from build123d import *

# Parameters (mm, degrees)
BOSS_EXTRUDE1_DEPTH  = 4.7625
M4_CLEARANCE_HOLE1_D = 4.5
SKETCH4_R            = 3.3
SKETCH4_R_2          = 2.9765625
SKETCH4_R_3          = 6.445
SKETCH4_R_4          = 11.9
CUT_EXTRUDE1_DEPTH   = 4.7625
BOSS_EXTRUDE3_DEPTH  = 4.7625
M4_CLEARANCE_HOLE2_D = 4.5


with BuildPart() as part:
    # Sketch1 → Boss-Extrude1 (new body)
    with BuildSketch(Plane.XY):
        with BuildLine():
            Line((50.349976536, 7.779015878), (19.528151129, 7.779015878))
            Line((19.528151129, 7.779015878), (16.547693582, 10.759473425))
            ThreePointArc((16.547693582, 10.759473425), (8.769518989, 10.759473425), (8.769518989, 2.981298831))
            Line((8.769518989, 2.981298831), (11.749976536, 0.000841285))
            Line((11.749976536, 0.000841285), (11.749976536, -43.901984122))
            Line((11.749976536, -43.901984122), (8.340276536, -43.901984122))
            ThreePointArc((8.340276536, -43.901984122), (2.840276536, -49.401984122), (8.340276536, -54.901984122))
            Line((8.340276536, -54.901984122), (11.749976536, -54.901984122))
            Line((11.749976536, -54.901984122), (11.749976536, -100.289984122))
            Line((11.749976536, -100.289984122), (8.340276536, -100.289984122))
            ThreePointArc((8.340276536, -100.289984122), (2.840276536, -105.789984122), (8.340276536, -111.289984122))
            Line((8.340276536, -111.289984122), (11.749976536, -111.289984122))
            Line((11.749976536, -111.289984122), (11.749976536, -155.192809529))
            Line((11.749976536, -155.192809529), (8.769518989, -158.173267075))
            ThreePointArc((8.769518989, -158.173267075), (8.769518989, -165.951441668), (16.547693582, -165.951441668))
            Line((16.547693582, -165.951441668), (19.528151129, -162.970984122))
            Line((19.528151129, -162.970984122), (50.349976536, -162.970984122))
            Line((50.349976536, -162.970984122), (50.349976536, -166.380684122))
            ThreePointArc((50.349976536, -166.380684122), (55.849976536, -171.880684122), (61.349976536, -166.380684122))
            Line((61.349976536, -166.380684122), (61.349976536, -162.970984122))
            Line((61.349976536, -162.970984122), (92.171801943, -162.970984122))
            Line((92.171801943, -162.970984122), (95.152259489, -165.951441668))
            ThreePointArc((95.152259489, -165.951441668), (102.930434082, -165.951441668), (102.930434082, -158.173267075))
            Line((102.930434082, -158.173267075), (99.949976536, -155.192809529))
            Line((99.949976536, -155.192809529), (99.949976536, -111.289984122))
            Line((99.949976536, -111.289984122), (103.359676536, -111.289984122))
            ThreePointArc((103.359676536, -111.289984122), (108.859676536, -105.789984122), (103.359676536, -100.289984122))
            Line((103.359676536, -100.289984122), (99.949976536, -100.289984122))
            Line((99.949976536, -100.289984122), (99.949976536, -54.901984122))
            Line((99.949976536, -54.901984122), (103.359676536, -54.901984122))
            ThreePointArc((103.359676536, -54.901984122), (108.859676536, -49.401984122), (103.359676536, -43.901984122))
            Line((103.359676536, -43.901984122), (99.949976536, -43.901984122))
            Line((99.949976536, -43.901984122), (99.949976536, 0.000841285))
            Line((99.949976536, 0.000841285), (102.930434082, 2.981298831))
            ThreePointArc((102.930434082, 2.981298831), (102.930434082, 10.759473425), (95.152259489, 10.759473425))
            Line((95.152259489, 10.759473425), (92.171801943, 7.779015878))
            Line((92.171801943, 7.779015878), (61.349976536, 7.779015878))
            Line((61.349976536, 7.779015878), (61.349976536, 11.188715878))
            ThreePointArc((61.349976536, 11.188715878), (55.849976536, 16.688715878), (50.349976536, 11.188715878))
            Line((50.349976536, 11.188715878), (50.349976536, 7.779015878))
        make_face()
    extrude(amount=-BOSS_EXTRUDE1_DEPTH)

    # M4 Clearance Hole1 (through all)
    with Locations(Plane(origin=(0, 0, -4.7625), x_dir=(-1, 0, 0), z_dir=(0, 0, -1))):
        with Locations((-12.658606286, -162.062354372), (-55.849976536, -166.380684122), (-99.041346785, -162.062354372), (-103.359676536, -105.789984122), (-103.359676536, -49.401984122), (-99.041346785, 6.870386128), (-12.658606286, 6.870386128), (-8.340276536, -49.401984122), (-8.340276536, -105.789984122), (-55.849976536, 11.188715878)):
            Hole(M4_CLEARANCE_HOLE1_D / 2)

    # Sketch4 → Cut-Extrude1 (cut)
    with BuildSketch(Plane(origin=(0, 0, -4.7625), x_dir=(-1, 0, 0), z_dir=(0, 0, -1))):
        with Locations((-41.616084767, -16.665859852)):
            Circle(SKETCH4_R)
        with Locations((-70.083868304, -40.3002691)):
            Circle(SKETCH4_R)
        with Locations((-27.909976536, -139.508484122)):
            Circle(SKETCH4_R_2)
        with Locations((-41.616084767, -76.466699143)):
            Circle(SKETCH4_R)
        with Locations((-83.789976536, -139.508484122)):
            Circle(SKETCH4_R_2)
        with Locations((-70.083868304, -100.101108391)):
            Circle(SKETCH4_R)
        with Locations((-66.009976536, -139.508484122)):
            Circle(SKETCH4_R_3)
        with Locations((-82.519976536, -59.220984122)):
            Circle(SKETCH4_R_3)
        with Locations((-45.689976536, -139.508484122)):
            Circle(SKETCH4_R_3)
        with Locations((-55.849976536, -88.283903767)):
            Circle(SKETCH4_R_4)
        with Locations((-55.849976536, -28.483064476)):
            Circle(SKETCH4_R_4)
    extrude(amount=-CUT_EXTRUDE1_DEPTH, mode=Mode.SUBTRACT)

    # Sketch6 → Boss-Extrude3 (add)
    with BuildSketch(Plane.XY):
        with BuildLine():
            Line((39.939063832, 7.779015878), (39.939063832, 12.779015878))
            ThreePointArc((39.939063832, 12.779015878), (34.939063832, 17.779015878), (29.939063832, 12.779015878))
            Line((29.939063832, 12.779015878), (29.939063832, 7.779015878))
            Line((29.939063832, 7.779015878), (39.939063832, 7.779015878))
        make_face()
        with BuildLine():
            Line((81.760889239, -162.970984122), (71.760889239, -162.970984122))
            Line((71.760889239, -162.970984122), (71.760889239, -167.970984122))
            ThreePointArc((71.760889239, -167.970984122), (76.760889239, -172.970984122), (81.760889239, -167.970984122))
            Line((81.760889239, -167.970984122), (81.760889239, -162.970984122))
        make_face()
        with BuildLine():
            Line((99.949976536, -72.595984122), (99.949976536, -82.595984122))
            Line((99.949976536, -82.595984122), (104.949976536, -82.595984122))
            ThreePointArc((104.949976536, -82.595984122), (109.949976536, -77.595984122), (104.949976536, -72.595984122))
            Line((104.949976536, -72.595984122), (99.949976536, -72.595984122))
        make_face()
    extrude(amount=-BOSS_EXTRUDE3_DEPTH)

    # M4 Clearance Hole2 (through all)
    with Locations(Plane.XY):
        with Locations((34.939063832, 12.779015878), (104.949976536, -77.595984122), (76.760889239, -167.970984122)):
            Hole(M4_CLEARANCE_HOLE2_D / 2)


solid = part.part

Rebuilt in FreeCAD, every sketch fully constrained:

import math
import FreeCAD as App
import Part
import Sketcher

doc = App.newDocument("Part")
body = doc.addObject("PartDesign::Body", "Body")

# Sketch on XY plane
sketch1 = body.newObject("Sketcher::SketchObject", "Sketch")
sketch1.AttachmentSupport = (doc.getObject("XY_Plane"), [""])
sketch1.MapMode = "FlatFace"
sketch1.addGeometry([
    Part.LineSegment(App.Vector(50.3, 7.8, 0), App.Vector(19.5, 7.8, 0)),  # 0
    Part.LineSegment(App.Vector(19.5, 7.8, 0), App.Vector(16.5, 10.8, 0)),  # 1
    Part.ArcOfCircle(Part.Circle(App.Vector(12.7, 6.9, 0), App.Vector(0, 0, 1), 5.5), math.radians(45), math.radians(225)),  # 2
    Part.LineSegment(App.Vector(8.8, 3, 0), App.Vector(11.7, 0, 0)),  # 3
    Part.LineSegment(App.Vector(11.7, 0, 0), App.Vector(11.7, -43.9, 0)),  # 4
    Part.LineSegment(App.Vector(11.7, -43.9, 0), App.Vector(8.3, -43.9, 0)),  # 5
    Part.ArcOfCircle(Part.Circle(App.Vector(8.3, -49.4, 0), App.Vector(0, 0, 1), 5.5), math.radians(90), math.radians(270)),  # 6
    Part.LineSegment(App.Vector(8.3, -54.9, 0), App.Vector(11.7, -54.9, 0)),  # 7
    Part.LineSegment(App.Vector(11.7, -54.9, 0), App.Vector(11.7, -100.3, 0)),  # 8
    Part.LineSegment(App.Vector(11.7, -100.3, 0), App.Vector(8.3, -100.3, 0)),  # 9
    Part.ArcOfCircle(Part.Circle(App.Vector(8.3, -105.8, 0), App.Vector(0, 0, 1), 5.5), math.radians(90), math.radians(270)),  # 10
    Part.LineSegment(App.Vector(8.3, -111.3, 0), App.Vector(11.7, -111.3, 0)),  # 11
    Part.LineSegment(App.Vector(11.7, -111.3, 0), App.Vector(11.7, -155.2, 0)),  # 12
    Part.LineSegment(App.Vector(11.7, -155.2, 0), App.Vector(8.8, -158.2, 0)),  # 13
    Part.ArcOfCircle(Part.Circle(App.Vector(12.7, -162.1, 0), App.Vector(0, 0, 1), 5.5), math.radians(135), math.radians(315)),  # 14
    Part.LineSegment(App.Vector(16.5, -166, 0), App.Vector(19.5, -163, 0)),  # 15
    Part.LineSegment(App.Vector(19.5, -163, 0), App.Vector(50.3, -163, 0)),  # 16
    Part.LineSegment(App.Vector(50.3, -163, 0), App.Vector(50.3, -166.4, 0)),  # 17
    Part.ArcOfCircle(Part.Circle(App.Vector(55.8, -166.4, 0), App.Vector(0, 0, 1), 5.5), math.radians(180), math.radians(360)),  # 18
    Part.LineSegment(App.Vector(61.3, -166.4, 0), App.Vector(61.3, -163, 0)),  # 19
    Part.LineSegment(App.Vector(61.3, -163, 0), App.Vector(92.2, -163, 0)),  # 20
    Part.LineSegment(App.Vector(92.2, -163, 0), App.Vector(95.2, -166, 0)),  # 21
    Part.ArcOfCircle(Part.Circle(App.Vector(99, -162.1, 0), App.Vector(0, 0, 1), 5.5), math.radians(-135), math.radians(45)),  # 22
    Part.LineSegment(App.Vector(102.9, -158.2, 0), App.Vector(99.9, -155.2, 0)),  # 23
    Part.LineSegment(App.Vector(99.9, -155.2, 0), App.Vector(99.9, -111.3, 0)),  # 24
    Part.LineSegment(App.Vector(99.9, -111.3, 0), App.Vector(103.4, -111.3, 0)),  # 25
    Part.ArcOfCircle(Part.Circle(App.Vector(103.4, -105.8, 0), App.Vector(0, 0, 1), 5.5), math.radians(-90), math.radians(90)),  # 26
    Part.LineSegment(App.Vector(103.4, -100.3, 0), App.Vector(99.9, -100.3, 0)),  # 27
    Part.LineSegment(App.Vector(99.9, -100.3, 0), App.Vector(99.9, -54.9, 0)),  # 28
    Part.LineSegment(App.Vector(99.9, -54.9, 0), App.Vector(103.4, -54.9, 0)),  # 29
    Part.ArcOfCircle(Part.Circle(App.Vector(103.4, -49.4, 0), App.Vector(0, 0, 1), 5.5), math.radians(-90), math.radians(90)),  # 30
    Part.LineSegment(App.Vector(103.4, -43.9, 0), App.Vector(99.9, -43.9, 0)),  # 31
    Part.LineSegment(App.Vector(99.9, -43.9, 0), App.Vector(99.9, 0, 0)),  # 32
    Part.LineSegment(App.Vector(99.9, 0, 0), App.Vector(102.9, 3, 0)),  # 33
    Part.ArcOfCircle(Part.Circle(App.Vector(99, 6.9, 0), App.Vector(0, 0, 1), 5.5), math.radians(-45), math.radians(135)),  # 34
    Part.LineSegment(App.Vector(95.2, 10.8, 0), App.Vector(92.2, 7.8, 0)),  # 35
    Part.LineSegment(App.Vector(92.2, 7.8, 0), App.Vector(61.3, 7.8, 0)),  # 36
    Part.LineSegment(App.Vector(61.3, 7.8, 0), App.Vector(61.3, 11.2, 0)),  # 37
    Part.ArcOfCircle(Part.Circle(App.Vector(55.8, 11.2, 0), App.Vector(0, 0, 1), 5.5), math.radians(0), math.radians(180)),  # 38
    Part.LineSegment(App.Vector(50.3, 11.2, 0), App.Vector(50.3, 7.8, 0)),  # 39
], False)
sketch1.addConstraint([
    Sketcher.Constraint("Coincident", 0, 2, 1, 1),
    Sketcher.Constraint("Tangent", 1, 2, 2, 1),
    Sketcher.Constraint("Tangent", 2, 2, 3, 1),
    Sketcher.Constraint("Coincident", 3, 2, 4, 1),
    Sketcher.Constraint("Coincident", 4, 2, 5, 1),
    Sketcher.Constraint("Tangent", 5, 2, 6, 1),
    Sketcher.Constraint("Tangent", 6, 2, 7, 1),
    Sketcher.Constraint("Coincident", 7, 2, 8, 1),
    Sketcher.Constraint("Coincident", 8, 2, 9, 1),
    Sketcher.Constraint("Tangent", 9, 2, 10, 1),
    Sketcher.Constraint("Tangent", 10, 2, 11, 1),
    Sketcher.Constraint("Coincident", 11, 2, 12, 1),
    Sketcher.Constraint("Coincident", 12, 2, 13, 1),
    Sketcher.Constraint("Tangent", 13, 2, 14, 1),
    Sketcher.Constraint("Tangent", 14, 2, 15, 1),
    Sketcher.Constraint("Coincident", 15, 2, 16, 1),
    Sketcher.Constraint("Coincident", 16, 2, 17, 1),
    Sketcher.Constraint("Tangent", 17, 2, 18, 1),
    Sketcher.Constraint("Tangent", 18, 2, 19, 1),
    Sketcher.Constraint("Coincident", 19, 2, 20, 1),
    Sketcher.Constraint("Coincident", 20, 2, 21, 1),
    Sketcher.Constraint("Tangent", 21, 2, 22, 1),
    Sketcher.Constraint("Tangent", 22, 2, 23, 1),
    Sketcher.Constraint("Coincident", 23, 2, 24, 1),
    Sketcher.Constraint("Coincident", 24, 2, 25, 1),
    Sketcher.Constraint("Tangent", 25, 2, 26, 1),
    Sketcher.Constraint("Tangent", 26, 2, 27, 1),
    Sketcher.Constraint("Coincident", 27, 2, 28, 1),
    Sketcher.Constraint("Coincident", 28, 2, 29, 1),
    Sketcher.Constraint("Tangent", 29, 2, 30, 1),
    Sketcher.Constraint("Tangent", 30, 2, 31, 1),
    Sketcher.Constraint("Coincident", 31, 2, 32, 1),
    Sketcher.Constraint("Coincident", 32, 2, 33, 1),
    Sketcher.Constraint("Tangent", 33, 2, 34, 1),
    Sketcher.Constraint("Tangent", 34, 2, 35, 1),
    Sketcher.Constraint("Coincident", 35, 2, 36, 1),
    Sketcher.Constraint("Coincident", 36, 2, 37, 1),
    Sketcher.Constraint("Tangent", 37, 2, 38, 1),
    Sketcher.Constraint("Tangent", 38, 2, 39, 1),
    Sketcher.Constraint("Coincident", 39, 2, 0, 1),
    Sketcher.Constraint("Horizontal", 0),
    Sketcher.Constraint("Vertical", 4),
    Sketcher.Constraint("Horizontal", 5),
    Sketcher.Constraint("Horizontal", 7),
    Sketcher.Constraint("Vertical", 8),
    Sketcher.Constraint("Horizontal", 9),
    Sketcher.Constraint("Horizontal", 11),
    Sketcher.Constraint("Vertical", 12),
    Sketcher.Constraint("Horizontal", 16),
    Sketcher.Constraint("Vertical", 17),
    Sketcher.Constraint("Vertical", 19),
    Sketcher.Constraint("Horizontal", 20),
    Sketcher.Constraint("Vertical", 24),
    Sketcher.Constraint("Horizontal", 25),
    Sketcher.Constraint("Horizontal", 27),
    Sketcher.Constraint("Vertical", 28),
    Sketcher.Constraint("Horizontal", 29),
    Sketcher.Constraint("Horizontal", 31),
    Sketcher.Constraint("Vertical", 32),
    Sketcher.Constraint("Horizontal", 36),
    Sketcher.Constraint("Vertical", 37),
    Sketcher.Constraint("Vertical", 39),
    Sketcher.Constraint("Equal", 2, 6),
    Sketcher.Constraint("Equal", 6, 10),
    Sketcher.Constraint("Equal", 10, 14),
    Sketcher.Constraint("Equal", 14, 18),
    Sketcher.Constraint("Equal", 18, 22),
    Sketcher.Constraint("Equal", 22, 26),
    Sketcher.Constraint("Equal", 26, 30),
    Sketcher.Constraint("Equal", 30, 34),
    Sketcher.Constraint("Equal", 34, 38),
    Sketcher.Constraint("Parallel", 1, 3),
    Sketcher.Constraint("Perpendicular", 3, 13),
    Sketcher.Constraint("Parallel", 13, 15),
    Sketcher.Constraint("Perpendicular", 15, 21),
    Sketcher.Constraint("Parallel", 21, 23),
    Sketcher.Constraint("Perpendicular", 23, 33),
    Sketcher.Constraint("Parallel", 33, 35),
    Sketcher.Constraint("Horizontal", 14, 3, 22, 3),
    Sketcher.Constraint("Horizontal", 10, 3, 26, 3),
    Sketcher.Constraint("Horizontal", 6, 3, 30, 3),
    Sketcher.Constraint("Horizontal", 2, 3, 34, 3),
    Sketcher.Constraint("Horizontal", 16, 2, 19, 2),
    Sketcher.Constraint("Horizontal", 14, 2, 21, 2),
    Sketcher.Constraint("Horizontal", 12, 2, 23, 2),
    Sketcher.Constraint("Horizontal", 3, 2, 32, 2),
    Sketcher.Constraint("Horizontal", 0, 2, 35, 2),
    Sketcher.Constraint("Vertical", 6, 3, 10, 3),
    Sketcher.Constraint("Vertical", 2, 3, 14, 3),
    Sketcher.Constraint("Vertical", 26, 3, 30, 3),
    Sketcher.Constraint("Vertical", 22, 3, 34, 3),
    Sketcher.Constraint("Vertical", 18, 3, 38, 3),
    Sketcher.Constraint("Vertical", 4, 2, 7, 2),
    Sketcher.Constraint("Vertical", 8, 2, 11, 2),
    Sketcher.Constraint("Vertical", 0, 2, 15, 2),
    Sketcher.Constraint("Vertical", 24, 2, 27, 2),
    Sketcher.Constraint("Equal", 16, 20),
    Sketcher.Constraint("Equal", 11, 25),
    Sketcher.Constraint("Equal", 4, 12),
    Sketcher.Constraint("Equal", 31, 17),
    Sketcher.Constraint("Equal", 19, 37),
    Sketcher.Constraint("Equal", 1, 3),
    Sketcher.Constraint("Radius", 2, 5.5),
    Sketcher.Constraint("DistanceX", 3, 2, 38, 3, 44.1),
    Sketcher.Constraint("DistanceY", 8, 2, 8, 1, 45.388),
    Sketcher.Constraint("DistanceX", 5, 2, 5, 1, 3.4097),
    Sketcher.Constraint("DistanceY", 6, 3, 0, 2, 57.181),
    Sketcher.Constraint("DistanceY", -1, 1, 2, 2, 2.981299),
    Sketcher.Constraint("DistanceX", -1, 1, 20, 2, 92.171802),
    Sketcher.Constraint("DistanceX", -1, 1, 2, 2, 8.769519),
])
pad1 = body.newObject("PartDesign::Pad", "Pad")
pad1.Profile = sketch1
pad1.Length = 4.7625
pad1.Reversed = True

# Sketch on XY plane
sketch2 = body.newObject("Sketcher::SketchObject", "Sketch001")
sketch2.AttachmentSupport = (doc.getObject("XY_Plane"), [""])
sketch2.MapMode = "FlatFace"
sketch2.AttachmentOffset = App.Placement(App.Vector(0, 0, -4.7625), App.Rotation())
sketch2.addGeometry([
    Part.Circle(App.Vector(12.7, -162.1, 0), App.Vector(0, 0, 1), 2.2),  # 0
    Part.Circle(App.Vector(55.8, -166.4, 0), App.Vector(0, 0, 1), 2.2),  # 1
    Part.Circle(App.Vector(99, -162.1, 0), App.Vector(0, 0, 1), 2.2),  # 2
    Part.Circle(App.Vector(103.4, -105.8, 0), App.Vector(0, 0, 1), 2.2),  # 3
    Part.Circle(App.Vector(103.4, -49.4, 0), App.Vector(0, 0, 1), 2.2),  # 4
    Part.Circle(App.Vector(99, 6.9, 0), App.Vector(0, 0, 1), 2.2),  # 5
    Part.Circle(App.Vector(12.7, 6.9, 0), App.Vector(0, 0, 1), 2.2),  # 6
    Part.Circle(App.Vector(8.3, -49.4, 0), App.Vector(0, 0, 1), 2.2),  # 7
    Part.Circle(App.Vector(8.3, -105.8, 0), App.Vector(0, 0, 1), 2.2),  # 8
    Part.Circle(App.Vector(55.8, 11.2, 0), App.Vector(0, 0, 1), 2.2),  # 9
], False)
sketch2.addConstraint([
    Sketcher.Constraint("Equal", 0, 1),
    Sketcher.Constraint("Equal", 1, 2),
    Sketcher.Constraint("Equal", 2, 3),
    Sketcher.Constraint("Equal", 3, 4),
    Sketcher.Constraint("Equal", 4, 5),
    Sketcher.Constraint("Equal", 5, 6),
    Sketcher.Constraint("Equal", 6, 7),
    Sketcher.Constraint("Equal", 7, 8),
    Sketcher.Constraint("Equal", 8, 9),
    Sketcher.Constraint("Horizontal", 0, 3, 2, 3),
    Sketcher.Constraint("Horizontal", 5, 3, 6, 3),
    Sketcher.Constraint("Horizontal", 4, 3, 7, 3),
    Sketcher.Constraint("Horizontal", 3, 3, 8, 3),
    Sketcher.Constraint("Vertical", 3, 3, 4, 3),
    Sketcher.Constraint("Vertical", 2, 3, 5, 3),
    Sketcher.Constraint("Vertical", 0, 3, 6, 3),
    Sketcher.Constraint("Vertical", 7, 3, 8, 3),
    Sketcher.Constraint("Vertical", 1, 3, 9, 3),
    Sketcher.Constraint("Diameter", 0, 4.5),
    Sketcher.Constraint("DistanceY", 3, 3, 4, 3, 56.388),
    Sketcher.Constraint("DistanceX", 1, 3, 3, 3, 47.5097),
    Sketcher.Constraint("DistanceY", 1, 3, 3, 3, 60.5907),
    Sketcher.Constraint("DistanceX", 7, 3, 4, 3, 95.0194),
    Sketcher.Constraint("DistanceY", 4, 3, 9, 3, 60.5907),
    Sketcher.Constraint("DistanceX", 0, 3, 1, 3, 43.19137),
    Sketcher.Constraint("DistanceY", 1, 3, 0, 3, 4.31833),
    Sketcher.Constraint("DistanceX", 1, 3, 2, 3, 43.19137),
    Sketcher.Constraint("DistanceY", 4, 3, 5, 3, 56.27237),
    Sketcher.Constraint("DistanceX", -1, 1, 0, 3, 12.658606),
    Sketcher.Constraint("DistanceY", 0, 3, -1, 1, 162.062354),
])
doc.recompute()
hole = body.newObject("PartDesign::Hole", "Hole")
hole.Profile = sketch2
hole.ThreadType = "None"
hole.Diameter = 4.5
hole.DepthType = "ThroughAll"
hole.Reversed = True

# Sketch on XY plane
sketch3 = body.newObject("Sketcher::SketchObject", "Sketch002")
sketch3.AttachmentSupport = (doc.getObject("XY_Plane"), [""])
sketch3.MapMode = "FlatFace"
sketch3.AttachmentOffset = App.Placement(App.Vector(0, 0, -4.7625), App.Rotation())
sketch3.addGeometry([
    Part.Circle(App.Vector(41.6, -16.7, 0), App.Vector(0, 0, 1), 3.3),  # 0
    Part.Circle(App.Vector(70.1, -40.3, 0), App.Vector(0, 0, 1), 3.3),  # 1
    Part.Circle(App.Vector(27.9, -139.5, 0), App.Vector(0, 0, 1), 3),  # 2
    Part.Circle(App.Vector(41.6, -76.5, 0), App.Vector(0, 0, 1), 3.3),  # 3
    Part.Circle(App.Vector(83.8, -139.5, 0), App.Vector(0, 0, 1), 3),  # 4
    Part.Circle(App.Vector(70.1, -100.1, 0), App.Vector(0, 0, 1), 3.3),  # 5
    Part.Circle(App.Vector(66, -139.5, 0), App.Vector(0, 0, 1), 6.4),  # 6
    Part.Circle(App.Vector(82.5, -59.2, 0), App.Vector(0, 0, 1), 6.4),  # 7
    Part.Circle(App.Vector(45.7, -139.5, 0), App.Vector(0, 0, 1), 6.4),  # 8
    Part.Circle(App.Vector(55.8, -88.3, 0), App.Vector(0, 0, 1), 11.9),  # 9
    Part.Circle(App.Vector(55.8, -28.5, 0), App.Vector(0, 0, 1), 11.9),  # 10
], False)
sketch3.addConstraint([
    Sketcher.Constraint("Equal", 0, 1),
    Sketcher.Constraint("Equal", 1, 3),
    Sketcher.Constraint("Equal", 2, 4),
    Sketcher.Constraint("Equal", 3, 5),
    Sketcher.Constraint("Equal", 6, 7),
    Sketcher.Constraint("Equal", 7, 8),
    Sketcher.Constraint("Equal", 9, 10),
    Sketcher.Constraint("Horizontal", 2, 3, 4, 3),
    Sketcher.Constraint("Horizontal", 4, 3, 6, 3),
    Sketcher.Constraint("Horizontal", 6, 3, 8, 3),
    Sketcher.Constraint("Vertical", 0, 3, 3, 3),
    Sketcher.Constraint("Vertical", 1, 3, 5, 3),
    Sketcher.Constraint("Vertical", 9, 3, 10, 3),
    Sketcher.Constraint("Diameter", 0, 6.6),
    Sketcher.Constraint("Diameter", 9, 23.8),
    Sketcher.Constraint("Diameter", 6, 12.89),
    Sketcher.Constraint("DistanceX", 2, 3, 6, 3, 38.1),
    Sketcher.Constraint("DistanceX", 8, 3, 4, 3, 38.1),
    Sketcher.Constraint("DistanceX", 2, 3, 4, 3, 55.88),
    Sketcher.Constraint("DistanceX", 7, 3, 4, 3, 1.27),
    Sketcher.Constraint("DistanceX", 9, 3, 7, 3, 26.67),
    Sketcher.Constraint("Diameter", 2, 5.953125),
    Sketcher.Constraint("DistanceY", 3, 3, -1, 1, 76.466699),
    Sketcher.Constraint("DistanceY", 4, 3, 7, 3, 80.2875),
    Sketcher.Constraint("DistanceY", 0, 3, -1, 1, 16.66586),
    Sketcher.Constraint("DistanceX", -1, 1, 1, 3, 70.083868),
    Sketcher.Constraint("DistanceY", 1, 3, -1, 1, 40.300269),
    Sketcher.Constraint("DistanceY", 5, 3, -1, 1, 100.101108),
    Sketcher.Constraint("DistanceX", 2, 3, 1, 3, 42.173892),
    Sketcher.Constraint("DistanceX", 2, 3, 0, 3, 13.706108),
    Sketcher.Constraint("DistanceY", 9, 3, 7, 3, 29.06292),
    Sketcher.Constraint("DistanceY", 7, 3, 10, 3, 30.73792),
    Sketcher.Constraint("DistanceY", 2, 3, -1, 1, 139.508484),
])
pocket1 = body.newObject("PartDesign::Pocket", "Pocket")
pocket1.Profile = sketch3
pocket1.Length = 4.7625
pocket1.Reversed = True

# Sketch on XY plane
sketch4 = body.newObject("Sketcher::SketchObject", "Sketch003")
sketch4.AttachmentSupport = (doc.getObject("XY_Plane"), [""])
sketch4.MapMode = "FlatFace"
sketch4.addGeometry([
    Part.LineSegment(App.Vector(39.9, 7.8, 0), App.Vector(39.9, 12.8, 0)),  # 0
    Part.ArcOfCircle(Part.Circle(App.Vector(34.9, 12.8, 0), App.Vector(0, 0, 1), 5), math.radians(0), math.radians(180)),  # 1
    Part.LineSegment(App.Vector(29.9, 12.8, 0), App.Vector(29.9, 7.8, 0)),  # 2
    Part.LineSegment(App.Vector(29.9, 7.8, 0), App.Vector(39.9, 7.8, 0)),  # 3
    Part.LineSegment(App.Vector(81.8, -163, 0), App.Vector(71.8, -163, 0)),  # 4
    Part.LineSegment(App.Vector(71.8, -163, 0), App.Vector(71.8, -168, 0)),  # 5
    Part.ArcOfCircle(Part.Circle(App.Vector(76.8, -168, 0), App.Vector(0, 0, 1), 5), math.radians(180), math.radians(360)),  # 6
    Part.LineSegment(App.Vector(81.8, -168, 0), App.Vector(81.8, -163, 0)),  # 7
    Part.LineSegment(App.Vector(99.9, -72.6, 0), App.Vector(99.9, -82.6, 0)),  # 8
    Part.LineSegment(App.Vector(99.9, -82.6, 0), App.Vector(104.9, -82.6, 0)),  # 9
    Part.ArcOfCircle(Part.Circle(App.Vector(104.9, -77.6, 0), App.Vector(0, 0, 1), 5), math.radians(-90), math.radians(90)),  # 10
    Part.LineSegment(App.Vector(104.9, -72.6, 0), App.Vector(99.9, -72.6, 0)),  # 11
], False)
sketch4.addConstraint([
    Sketcher.Constraint("Tangent", 0, 2, 1, 1),
    Sketcher.Constraint("Tangent", 1, 2, 2, 1),
    Sketcher.Constraint("Coincident", 2, 2, 3, 1),
    Sketcher.Constraint("Coincident", 3, 2, 0, 1),
    Sketcher.Constraint("Coincident", 4, 2, 5, 1),
    Sketcher.Constraint("Tangent", 5, 2, 6, 1),
    Sketcher.Constraint("Tangent", 6, 2, 7, 1),
    Sketcher.Constraint("Coincident", 7, 2, 4, 1),
    Sketcher.Constraint("Coincident", 8, 2, 9, 1),
    Sketcher.Constraint("Tangent", 9, 2, 10, 1),
    Sketcher.Constraint("Tangent", 10, 2, 11, 1),
    Sketcher.Constraint("Coincident", 11, 2, 8, 1),
    Sketcher.Constraint("Vertical", 0),
    Sketcher.Constraint("Vertical", 2),
    Sketcher.Constraint("Horizontal", 3),
    Sketcher.Constraint("Horizontal", 4),
    Sketcher.Constraint("Vertical", 5),
    Sketcher.Constraint("Vertical", 7),
    Sketcher.Constraint("Vertical", 8),
    Sketcher.Constraint("Horizontal", 9),
    Sketcher.Constraint("Horizontal", 11),
    Sketcher.Constraint("Equal", 1, 6),
    Sketcher.Constraint("Equal", 6, 10),
    Sketcher.Constraint("Equal", 11, 0),
    Sketcher.Constraint("Equal", 2, 5),
    Sketcher.Constraint("Radius", 1, 5.0),
    Sketcher.Constraint("DistanceX", 9, 1, 9, 2, 5.0),
    Sketcher.Constraint("DistanceY", 6, 3, 1, 3, 180.75),
    Sketcher.Constraint("DistanceY", 6, 3, 10, 3, 90.375),
    Sketcher.Constraint("DistanceX", -1, 1, 6, 3, 76.760889),
    Sketcher.Constraint("DistanceX", -1, 1, 1, 3, 34.939064),
    Sketcher.Constraint("DistanceY", -1, 1, 1, 3, 12.779016),
    Sketcher.Constraint("DistanceX", -1, 1, 10, 3, 104.949977),
])
pad2 = body.newObject("PartDesign::Pad", "Pad001")
pad2.Profile = sketch4
pad2.Length = 4.7625
pad2.Reversed = True

# Sketch on XY plane
sketch5 = body.newObject("Sketcher::SketchObject", "Sketch004")
sketch5.AttachmentSupport = (doc.getObject("XY_Plane"), [""])
sketch5.MapMode = "FlatFace"
sketch5.addGeometry([
    Part.Circle(App.Vector(34.9, 12.8, 0), App.Vector(0, 0, 1), 2.2),
    Part.Circle(App.Vector(104.9, -77.6, 0), App.Vector(0, 0, 1), 2.2),
    Part.Circle(App.Vector(76.8, -168, 0), App.Vector(0, 0, 1), 2.2),
], False)
sketch5.addConstraint([
    Sketcher.Constraint("Equal", 0, 1),
    Sketcher.Constraint("Equal", 1, 2),
    Sketcher.Constraint("Diameter", 0, 4.5),
    Sketcher.Constraint("DistanceY", 2, 3, 0, 3, 180.75),
    Sketcher.Constraint("DistanceY", 1, 3, 0, 3, 90.375),
    Sketcher.Constraint("DistanceX", -1, 1, 2, 3, 76.760889),
    Sketcher.Constraint("DistanceX", -1, 1, 0, 3, 34.939064),
    Sketcher.Constraint("DistanceY", -1, 1, 0, 3, 12.779016),
    Sketcher.Constraint("DistanceX", -1, 1, 1, 3, 104.949977),
])
doc.recompute()
hole2 = body.newObject("PartDesign::Hole", "Hole001")
hole2.Profile = sketch5
hole2.ThreadType = "None"
hole2.Diameter = 4.5
hole2.DepthType = "ThroughAll"

doc.recompute()
